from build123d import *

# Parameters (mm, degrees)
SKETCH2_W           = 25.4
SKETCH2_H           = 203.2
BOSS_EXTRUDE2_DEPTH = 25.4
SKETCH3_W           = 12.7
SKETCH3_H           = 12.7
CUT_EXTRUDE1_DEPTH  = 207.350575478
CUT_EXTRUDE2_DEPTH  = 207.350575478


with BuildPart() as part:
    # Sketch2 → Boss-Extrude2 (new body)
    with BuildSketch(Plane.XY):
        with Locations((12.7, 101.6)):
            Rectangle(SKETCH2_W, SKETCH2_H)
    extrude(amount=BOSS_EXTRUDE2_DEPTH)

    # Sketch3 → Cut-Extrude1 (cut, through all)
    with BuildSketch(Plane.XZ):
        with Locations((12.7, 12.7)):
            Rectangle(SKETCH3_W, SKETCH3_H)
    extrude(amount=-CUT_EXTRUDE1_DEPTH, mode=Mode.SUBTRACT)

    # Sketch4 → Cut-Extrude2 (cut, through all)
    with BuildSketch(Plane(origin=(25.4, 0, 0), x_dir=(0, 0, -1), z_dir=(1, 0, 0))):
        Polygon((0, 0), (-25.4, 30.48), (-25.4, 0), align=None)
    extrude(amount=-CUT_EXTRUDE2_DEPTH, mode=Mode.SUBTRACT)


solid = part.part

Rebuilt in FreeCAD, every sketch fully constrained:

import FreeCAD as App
import Part
import Sketcher

V = App.Vector
Q = App.Units.Quantity


def add_polygon(sketch, points):
    """Adds a closed chain of lines whose ends are joined by coincident constraints."""
    first, n = sketch.GeometryCount, len(points)
    for a, b in zip(points, points[1:] + points[:1]):
        sketch.addGeometry(Part.LineSegment(App.Vector(*a, 0), App.Vector(*b, 0)), False)
    for i in range(n):
        sketch.addConstraint(Sketcher.Constraint("Coincident", first + i, 2, first + (i + 1) % n, 1))

doc = App.newDocument("Part")
params = doc.addObject("Spreadsheet::Sheet", "Params")
for row, (alias, value) in enumerate([
    ("sketch1_width", "1 in"),
    ("sketch1_height", "8 in"),
    ("pad1_length", "1 in"),
    ("sketch2_width", "0.5 in"),
    ("sketch3_height", "1 in"),
    ("sketch3_width", "1.2 in"),
], start=1):
    params.set(f"A{row}", alias)
    params.set(f"B{row}", "=" + value)
    params.setAlias(f"B{row}", alias)

body = doc.addObject("PartDesign::Body", "Body")

# Sketch on XY plane
sketch1 = body.newObject("Sketcher::SketchObject", "Sketch")
sketch1.AttachmentSupport = (doc.getObject("XY_Plane"), [""])
sketch1.MapMode = "FlatFace"
add_polygon(sketch1, [(0, 203.2), (0, 0), (25.4, 0), (25.4, 203.2)])  # lines 0-3
sketch1.addConstraint(Sketcher.Constraint("Vertical", 0))
sketch1.addConstraint(Sketcher.Constraint("Horizontal", 1))
sketch1.addConstraint(Sketcher.Constraint("Vertical", 2))
sketch1.addConstraint(Sketcher.Constraint("Horizontal", 3))
sketch1.addConstraint(Sketcher.Constraint("Coincident", 0, 2, -1, 1))
sketch1.addConstraint(Sketcher.Constraint("DistanceX", 1, 1, 1, 2, Q("1 in")))
sketch1.addConstraint(Sketcher.Constraint("DistanceY", 0, 2, 0, 1, Q("8 in")))
sketch1.setExpression("Constraints[9]", "Params.sketch1_width")
sketch1.setExpression("Constraints[10]", "Params.sketch1_height")
pad1 = body.newObject("PartDesign::Pad", "Pad")
pad1.Profile = sketch1
pad1.setExpression("Length", "Params.pad1_length")

# Sketch on XZ plane
sketch2 = body.newObject("Sketcher::SketchObject", "Sketch001")
sketch2.AttachmentSupport = (doc.getObject("XZ_Plane"), [""])
sketch2.MapMode = "FlatFace"
add_polygon(sketch2, [(6.35, 19.05), (6.35, 6.35), (19.05, 6.35), (19.05, 19.05)])  # lines 0-3
sketch2.addConstraint(Sketcher.Constraint("Vertical", 0))
sketch2.addConstraint(Sketcher.Constraint("Horizontal", 1))
sketch2.addConstraint(Sketcher.Constraint("Vertical", 2))
sketch2.addConstraint(Sketcher.Constraint("Horizontal", 3))
sketch2.addConstraint(Sketcher.Constraint("Equal", 3, 0))
sketch2.addConstraint(Sketcher.Constraint("DistanceX", 1, 1, 1, 2, Q("0.5 in")))
sketch2.addConstraint(Sketcher.Constraint("DistanceX", -1, 1, 0, 2, Q("0.25 in")))
sketch2.addConstraint(Sketcher.Constraint("DistanceY", -1, 1, 0, 2, Q("0.25 in")))
sketch2.setExpression("Constraints[9]", "Params.sketch2_width")
pocket1 = body.newObject("PartDesign::Pocket", "Pocket")
pocket1.Profile = sketch2
pocket1.Type = "ThroughAll"

# Sketch on YZ plane
sketch3 = body.newObject("Sketcher::SketchObject", "Sketch002")
sketch3.AttachmentSupport = (doc.getObject("YZ_Plane"), [""])
sketch3.MapMode = "FlatFace"
sketch3.AttachmentOffset = App.Placement(V(0, 0, 1 * 25.4), App.Rotation())
add_polygon(sketch3, [(0, 0), (30.48, 25.4), (0, 25.4)])  # lines 0-2
sketch3.addConstraint(Sketcher.Constraint("Horizontal", 1))
sketch3.addConstraint(Sketcher.Constraint("Vertical", 2))
sketch3.addConstraint(Sketcher.Constraint("Coincident", 2, 2, -1, 1))
sketch3.addConstraint(Sketcher.Constraint("DistanceY", 2, 2, 2, 1, Q("1 in")))
sketch3.addConstraint(Sketcher.Constraint("DistanceX", 1, 2, 1, 1, Q("1.2 in")))
sketch3.setExpression("Constraints[6]", "Params.sketch3_height")
sketch3.setExpression("Constraints[7]", "Params.sketch3_width")
pocket2 = body.newObject("PartDesign::Pocket", "Pocket001")
pocket2.Profile = sketch3
pocket2.Type = "ThroughAll"

doc.recompute()
